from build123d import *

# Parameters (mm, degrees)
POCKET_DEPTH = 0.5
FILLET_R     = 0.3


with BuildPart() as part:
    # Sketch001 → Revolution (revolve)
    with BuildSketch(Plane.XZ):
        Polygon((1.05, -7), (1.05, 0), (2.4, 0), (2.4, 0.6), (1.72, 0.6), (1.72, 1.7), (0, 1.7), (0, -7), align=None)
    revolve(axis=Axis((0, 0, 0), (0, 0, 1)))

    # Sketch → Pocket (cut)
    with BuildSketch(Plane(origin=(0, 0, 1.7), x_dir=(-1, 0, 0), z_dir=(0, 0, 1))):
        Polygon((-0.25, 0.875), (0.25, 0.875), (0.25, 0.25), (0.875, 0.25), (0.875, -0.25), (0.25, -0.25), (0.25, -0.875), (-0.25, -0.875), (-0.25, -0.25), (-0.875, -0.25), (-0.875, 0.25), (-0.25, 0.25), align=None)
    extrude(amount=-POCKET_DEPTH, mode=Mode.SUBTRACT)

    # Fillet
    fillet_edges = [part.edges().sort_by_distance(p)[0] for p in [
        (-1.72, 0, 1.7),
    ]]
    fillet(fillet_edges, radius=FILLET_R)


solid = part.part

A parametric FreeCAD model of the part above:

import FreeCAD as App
import Part
import Sketcher


def edges_at(feature, points):
    """Names of the edges that pass closest to the given points."""
    edges = feature.Shape.Edges
    near = lambda p: min(range(len(edges)), key=lambda i: edges[i].distToShape(Part.Vertex(*p))[0])
    return sorted({f"Edge{near(p) + 1}" for p in points})

doc = App.newDocument("Part")
body = doc.addObject("PartDesign::Body", "Body")

sketch1 = body.newObject("Sketcher::SketchObject", "Sketch")
sketch1.AttachmentSupport = (doc.getObject("XZ_Plane"), [""])
sketch1.MapMode = "FlatFace"
sketch1.addGeometry([
    Part.LineSegment(App.Vector(1.1, -7, 0), App.Vector(1.1, 0, 0)),
    Part.LineSegment(App.Vector(1.1, 0, 0), App.Vector(2.4, 0, 0)),
    Part.LineSegment(App.Vector(2.4, 0, 0), App.Vector(2.4, 0.6, 0)),
    Part.LineSegment(App.Vector(2.4, 0.6, 0), App.Vector(1.7, 0.6, 0)),
    Part.LineSegment(App.Vector(1.7, 0.6, 0), App.Vector(1.7, 1.7, 0)),
    Part.LineSegment(App.Vector(1.7, 1.7, 0), App.Vector(0, 1.7, 0)),
    Part.LineSegment(App.Vector(0, 1.7, 0), App.Vector(0, -7, 0)),
    Part.LineSegment(App.Vector(0, -7, 0), App.Vector(1.1, -7, 0)),
], False)
sketch1.addConstraint([
    Sketcher.Constraint("Coincident", 0, 2, 1, 1),
    Sketcher.Constraint("Coincident", 1, 2, 2, 1),
    Sketcher.Constraint("Coincident", 2, 2, 3, 1),
    Sketcher.Constraint("Coincident", 3, 2, 4, 1),
    Sketcher.Constraint("Coincident", 4, 2, 5, 1),
    Sketcher.Constraint("Coincident", 5, 2, 6, 1),
    Sketcher.Constraint("Coincident", 6, 2, 7, 1),
    Sketcher.Constraint("Coincident", 7, 2, 0, 1),
    Sketcher.Constraint("Vertical", 0),
    Sketcher.Constraint("Horizontal", 1),
    Sketcher.Constraint("Vertical", 2),
    Sketcher.Constraint("Horizontal", 3),
    Sketcher.Constraint("Vertical", 4),
    Sketcher.Constraint("Horizontal", 5),
    Sketcher.Constraint("Vertical", 6),
    Sketcher.Constraint("Horizontal", 7),
    Sketcher.Constraint("PointOnObject", 0, 2, -1),
    Sketcher.Constraint("PointOnObject", 5, 2, -2),
    Sketcher.Constraint("DistanceY", 0, 1, 0, 2, 7.0),
    Sketcher.Constraint("DistanceY", 2, 1, 2, 2, 0.6),
    Sketcher.Constraint("DistanceY", 4, 1, 4, 2, 1.1),
    Sketcher.Constraint("DistanceX", 1, 1, 1, 2, 1.35),
    Sketcher.Constraint("DistanceX", 3, 2, 3, 1, 0.68),
    Sketcher.Constraint("DistanceX", 5, 2, 5, 1, 1.72),
])
revolution = body.newObject("PartDesign::Revolution", "Revolution")
revolution.Profile = sketch1
revolution.ReferenceAxis = (sketch1, ["V_Axis"])
revolution.Angle = 360

sketch2 = body.newObject("Sketcher::SketchObject", "Sketch001")
sketch2.AttachmentSupport = (doc.getObject("XY_Plane"), [""])
sketch2.MapMode = "FlatFace"
sketch2.AttachmentOffset = App.Placement(App.Vector(0, 0, 1.7), App.Rotation())
sketch2.addGeometry([
    Part.LineSegment(App.Vector(-0.2, -0.9, 0), App.Vector(0.2, -0.9, 0)),
    Part.LineSegment(App.Vector(0.2, -0.9, 0), App.Vector(0.2, -0.2, 0)),
    Part.LineSegment(App.Vector(0.2, -0.2, 0), App.Vector(0.9, -0.2, 0)),
    Part.LineSegment(App.Vector(0.9, -0.2, 0), App.Vector(0.9, 0.2, 0)),
    Part.LineSegment(App.Vector(0.9, 0.2, 0), App.Vector(0.2, 0.2, 0)),
    Part.LineSegment(App.Vector(0.2, 0.2, 0), App.Vector(0.2, 0.9, 0)),
    Part.LineSegment(App.Vector(0.2, 0.9, 0), App.Vector(-0.2, 0.9, 0)),
    Part.LineSegment(App.Vector(-0.2, 0.9, 0), App.Vector(-0.2, 0.2, 0)),
    Part.LineSegment(App.Vector(-0.2, 0.2, 0), App.Vector(-0.9, 0.2, 0)),
    Part.LineSegment(App.Vector(-0.9, 0.2, 0), App.Vector(-0.9, -0.2, 0)),
    Part.LineSegment(App.Vector(-0.9, -0.2, 0), App.Vector(-0.2, -0.2, 0)),
    Part.LineSegment(App.Vector(-0.2, -0.2, 0), App.Vector(-0.2, -0.9, 0)),
], False)
sketch2.addConstraint([
    Sketcher.Constraint("Coincident", 0, 2, 1, 1),
    Sketcher.Constraint("Coincident", 1, 2, 2, 1),
    Sketcher.Constraint("Coincident", 2, 2, 3, 1),
    Sketcher.Constraint("Coincident", 3, 2, 4, 1),
    Sketcher.Constraint("Coincident", 4, 2, 5, 1),
    Sketcher.Constraint("Coincident", 5, 2, 6, 1),
    Sketcher.Constraint("Coincident", 6, 2, 7, 1),
    Sketcher.Constraint("Coincident", 7, 2, 8, 1),
    Sketcher.Constraint("Coincident", 8, 2, 9, 1),
    Sketcher.Constraint("Coincident", 9, 2, 10, 1),
    Sketcher.Constraint("Coincident", 10, 2, 11, 1),
    Sketcher.Constraint("Coincident", 11, 2, 0, 1),
    Sketcher.Constraint("Horizontal", 0),
    Sketcher.Constraint("Vertical", 1),
    Sketcher.Constraint("Horizontal", 2),
    Sketcher.Constraint("Vertical", 3),
    Sketcher.Constraint("Horizontal", 4),
    Sketcher.Constraint("Vertical", 5),
    Sketcher.Constraint("Horizontal", 6),
    Sketcher.Constraint("Vertical", 7),
    Sketcher.Constraint("Horizontal", 8),
    Sketcher.Constraint("Vertical", 9),
    Sketcher.Constraint("Horizontal", 10),
    Sketcher.Constraint("Vertical", 11),
    Sketcher.Constraint("Symmetric", 0, 2, 6, 2, -1, 1),
    Sketcher.Constraint("Symmetric", 2, 2, 8, 2, -1, 1),
    Sketcher.Constraint("Symmetric", 4, 2, 10, 2, -1, 1),
    Sketcher.Constraint("Symmetric", 4, 2, 7, 2, -2),
    Sketcher.Constraint("Equal", 10, 1),
    Sketcher.Constraint("Equal", 6, 3),
    Sketcher.Constraint("DistanceX", 0, 1, 0, 2, 0.5),
    Sketcher.Constraint("DistanceX", 2, 1, 2, 2, 0.625),
])
pocket1 = body.newObject("PartDesign::Pocket", "Pocket")
pocket1.Profile = sketch2
pocket1.Length = 0.5
doc.recompute()

fillet = body.newObject("PartDesign::Fillet", "Fillet")
fillet.Base = (pocket1, edges_at(pocket1, [(-1.72, 0, 1.7)]))
fillet.Radius = 0.3

doc.recompute()
